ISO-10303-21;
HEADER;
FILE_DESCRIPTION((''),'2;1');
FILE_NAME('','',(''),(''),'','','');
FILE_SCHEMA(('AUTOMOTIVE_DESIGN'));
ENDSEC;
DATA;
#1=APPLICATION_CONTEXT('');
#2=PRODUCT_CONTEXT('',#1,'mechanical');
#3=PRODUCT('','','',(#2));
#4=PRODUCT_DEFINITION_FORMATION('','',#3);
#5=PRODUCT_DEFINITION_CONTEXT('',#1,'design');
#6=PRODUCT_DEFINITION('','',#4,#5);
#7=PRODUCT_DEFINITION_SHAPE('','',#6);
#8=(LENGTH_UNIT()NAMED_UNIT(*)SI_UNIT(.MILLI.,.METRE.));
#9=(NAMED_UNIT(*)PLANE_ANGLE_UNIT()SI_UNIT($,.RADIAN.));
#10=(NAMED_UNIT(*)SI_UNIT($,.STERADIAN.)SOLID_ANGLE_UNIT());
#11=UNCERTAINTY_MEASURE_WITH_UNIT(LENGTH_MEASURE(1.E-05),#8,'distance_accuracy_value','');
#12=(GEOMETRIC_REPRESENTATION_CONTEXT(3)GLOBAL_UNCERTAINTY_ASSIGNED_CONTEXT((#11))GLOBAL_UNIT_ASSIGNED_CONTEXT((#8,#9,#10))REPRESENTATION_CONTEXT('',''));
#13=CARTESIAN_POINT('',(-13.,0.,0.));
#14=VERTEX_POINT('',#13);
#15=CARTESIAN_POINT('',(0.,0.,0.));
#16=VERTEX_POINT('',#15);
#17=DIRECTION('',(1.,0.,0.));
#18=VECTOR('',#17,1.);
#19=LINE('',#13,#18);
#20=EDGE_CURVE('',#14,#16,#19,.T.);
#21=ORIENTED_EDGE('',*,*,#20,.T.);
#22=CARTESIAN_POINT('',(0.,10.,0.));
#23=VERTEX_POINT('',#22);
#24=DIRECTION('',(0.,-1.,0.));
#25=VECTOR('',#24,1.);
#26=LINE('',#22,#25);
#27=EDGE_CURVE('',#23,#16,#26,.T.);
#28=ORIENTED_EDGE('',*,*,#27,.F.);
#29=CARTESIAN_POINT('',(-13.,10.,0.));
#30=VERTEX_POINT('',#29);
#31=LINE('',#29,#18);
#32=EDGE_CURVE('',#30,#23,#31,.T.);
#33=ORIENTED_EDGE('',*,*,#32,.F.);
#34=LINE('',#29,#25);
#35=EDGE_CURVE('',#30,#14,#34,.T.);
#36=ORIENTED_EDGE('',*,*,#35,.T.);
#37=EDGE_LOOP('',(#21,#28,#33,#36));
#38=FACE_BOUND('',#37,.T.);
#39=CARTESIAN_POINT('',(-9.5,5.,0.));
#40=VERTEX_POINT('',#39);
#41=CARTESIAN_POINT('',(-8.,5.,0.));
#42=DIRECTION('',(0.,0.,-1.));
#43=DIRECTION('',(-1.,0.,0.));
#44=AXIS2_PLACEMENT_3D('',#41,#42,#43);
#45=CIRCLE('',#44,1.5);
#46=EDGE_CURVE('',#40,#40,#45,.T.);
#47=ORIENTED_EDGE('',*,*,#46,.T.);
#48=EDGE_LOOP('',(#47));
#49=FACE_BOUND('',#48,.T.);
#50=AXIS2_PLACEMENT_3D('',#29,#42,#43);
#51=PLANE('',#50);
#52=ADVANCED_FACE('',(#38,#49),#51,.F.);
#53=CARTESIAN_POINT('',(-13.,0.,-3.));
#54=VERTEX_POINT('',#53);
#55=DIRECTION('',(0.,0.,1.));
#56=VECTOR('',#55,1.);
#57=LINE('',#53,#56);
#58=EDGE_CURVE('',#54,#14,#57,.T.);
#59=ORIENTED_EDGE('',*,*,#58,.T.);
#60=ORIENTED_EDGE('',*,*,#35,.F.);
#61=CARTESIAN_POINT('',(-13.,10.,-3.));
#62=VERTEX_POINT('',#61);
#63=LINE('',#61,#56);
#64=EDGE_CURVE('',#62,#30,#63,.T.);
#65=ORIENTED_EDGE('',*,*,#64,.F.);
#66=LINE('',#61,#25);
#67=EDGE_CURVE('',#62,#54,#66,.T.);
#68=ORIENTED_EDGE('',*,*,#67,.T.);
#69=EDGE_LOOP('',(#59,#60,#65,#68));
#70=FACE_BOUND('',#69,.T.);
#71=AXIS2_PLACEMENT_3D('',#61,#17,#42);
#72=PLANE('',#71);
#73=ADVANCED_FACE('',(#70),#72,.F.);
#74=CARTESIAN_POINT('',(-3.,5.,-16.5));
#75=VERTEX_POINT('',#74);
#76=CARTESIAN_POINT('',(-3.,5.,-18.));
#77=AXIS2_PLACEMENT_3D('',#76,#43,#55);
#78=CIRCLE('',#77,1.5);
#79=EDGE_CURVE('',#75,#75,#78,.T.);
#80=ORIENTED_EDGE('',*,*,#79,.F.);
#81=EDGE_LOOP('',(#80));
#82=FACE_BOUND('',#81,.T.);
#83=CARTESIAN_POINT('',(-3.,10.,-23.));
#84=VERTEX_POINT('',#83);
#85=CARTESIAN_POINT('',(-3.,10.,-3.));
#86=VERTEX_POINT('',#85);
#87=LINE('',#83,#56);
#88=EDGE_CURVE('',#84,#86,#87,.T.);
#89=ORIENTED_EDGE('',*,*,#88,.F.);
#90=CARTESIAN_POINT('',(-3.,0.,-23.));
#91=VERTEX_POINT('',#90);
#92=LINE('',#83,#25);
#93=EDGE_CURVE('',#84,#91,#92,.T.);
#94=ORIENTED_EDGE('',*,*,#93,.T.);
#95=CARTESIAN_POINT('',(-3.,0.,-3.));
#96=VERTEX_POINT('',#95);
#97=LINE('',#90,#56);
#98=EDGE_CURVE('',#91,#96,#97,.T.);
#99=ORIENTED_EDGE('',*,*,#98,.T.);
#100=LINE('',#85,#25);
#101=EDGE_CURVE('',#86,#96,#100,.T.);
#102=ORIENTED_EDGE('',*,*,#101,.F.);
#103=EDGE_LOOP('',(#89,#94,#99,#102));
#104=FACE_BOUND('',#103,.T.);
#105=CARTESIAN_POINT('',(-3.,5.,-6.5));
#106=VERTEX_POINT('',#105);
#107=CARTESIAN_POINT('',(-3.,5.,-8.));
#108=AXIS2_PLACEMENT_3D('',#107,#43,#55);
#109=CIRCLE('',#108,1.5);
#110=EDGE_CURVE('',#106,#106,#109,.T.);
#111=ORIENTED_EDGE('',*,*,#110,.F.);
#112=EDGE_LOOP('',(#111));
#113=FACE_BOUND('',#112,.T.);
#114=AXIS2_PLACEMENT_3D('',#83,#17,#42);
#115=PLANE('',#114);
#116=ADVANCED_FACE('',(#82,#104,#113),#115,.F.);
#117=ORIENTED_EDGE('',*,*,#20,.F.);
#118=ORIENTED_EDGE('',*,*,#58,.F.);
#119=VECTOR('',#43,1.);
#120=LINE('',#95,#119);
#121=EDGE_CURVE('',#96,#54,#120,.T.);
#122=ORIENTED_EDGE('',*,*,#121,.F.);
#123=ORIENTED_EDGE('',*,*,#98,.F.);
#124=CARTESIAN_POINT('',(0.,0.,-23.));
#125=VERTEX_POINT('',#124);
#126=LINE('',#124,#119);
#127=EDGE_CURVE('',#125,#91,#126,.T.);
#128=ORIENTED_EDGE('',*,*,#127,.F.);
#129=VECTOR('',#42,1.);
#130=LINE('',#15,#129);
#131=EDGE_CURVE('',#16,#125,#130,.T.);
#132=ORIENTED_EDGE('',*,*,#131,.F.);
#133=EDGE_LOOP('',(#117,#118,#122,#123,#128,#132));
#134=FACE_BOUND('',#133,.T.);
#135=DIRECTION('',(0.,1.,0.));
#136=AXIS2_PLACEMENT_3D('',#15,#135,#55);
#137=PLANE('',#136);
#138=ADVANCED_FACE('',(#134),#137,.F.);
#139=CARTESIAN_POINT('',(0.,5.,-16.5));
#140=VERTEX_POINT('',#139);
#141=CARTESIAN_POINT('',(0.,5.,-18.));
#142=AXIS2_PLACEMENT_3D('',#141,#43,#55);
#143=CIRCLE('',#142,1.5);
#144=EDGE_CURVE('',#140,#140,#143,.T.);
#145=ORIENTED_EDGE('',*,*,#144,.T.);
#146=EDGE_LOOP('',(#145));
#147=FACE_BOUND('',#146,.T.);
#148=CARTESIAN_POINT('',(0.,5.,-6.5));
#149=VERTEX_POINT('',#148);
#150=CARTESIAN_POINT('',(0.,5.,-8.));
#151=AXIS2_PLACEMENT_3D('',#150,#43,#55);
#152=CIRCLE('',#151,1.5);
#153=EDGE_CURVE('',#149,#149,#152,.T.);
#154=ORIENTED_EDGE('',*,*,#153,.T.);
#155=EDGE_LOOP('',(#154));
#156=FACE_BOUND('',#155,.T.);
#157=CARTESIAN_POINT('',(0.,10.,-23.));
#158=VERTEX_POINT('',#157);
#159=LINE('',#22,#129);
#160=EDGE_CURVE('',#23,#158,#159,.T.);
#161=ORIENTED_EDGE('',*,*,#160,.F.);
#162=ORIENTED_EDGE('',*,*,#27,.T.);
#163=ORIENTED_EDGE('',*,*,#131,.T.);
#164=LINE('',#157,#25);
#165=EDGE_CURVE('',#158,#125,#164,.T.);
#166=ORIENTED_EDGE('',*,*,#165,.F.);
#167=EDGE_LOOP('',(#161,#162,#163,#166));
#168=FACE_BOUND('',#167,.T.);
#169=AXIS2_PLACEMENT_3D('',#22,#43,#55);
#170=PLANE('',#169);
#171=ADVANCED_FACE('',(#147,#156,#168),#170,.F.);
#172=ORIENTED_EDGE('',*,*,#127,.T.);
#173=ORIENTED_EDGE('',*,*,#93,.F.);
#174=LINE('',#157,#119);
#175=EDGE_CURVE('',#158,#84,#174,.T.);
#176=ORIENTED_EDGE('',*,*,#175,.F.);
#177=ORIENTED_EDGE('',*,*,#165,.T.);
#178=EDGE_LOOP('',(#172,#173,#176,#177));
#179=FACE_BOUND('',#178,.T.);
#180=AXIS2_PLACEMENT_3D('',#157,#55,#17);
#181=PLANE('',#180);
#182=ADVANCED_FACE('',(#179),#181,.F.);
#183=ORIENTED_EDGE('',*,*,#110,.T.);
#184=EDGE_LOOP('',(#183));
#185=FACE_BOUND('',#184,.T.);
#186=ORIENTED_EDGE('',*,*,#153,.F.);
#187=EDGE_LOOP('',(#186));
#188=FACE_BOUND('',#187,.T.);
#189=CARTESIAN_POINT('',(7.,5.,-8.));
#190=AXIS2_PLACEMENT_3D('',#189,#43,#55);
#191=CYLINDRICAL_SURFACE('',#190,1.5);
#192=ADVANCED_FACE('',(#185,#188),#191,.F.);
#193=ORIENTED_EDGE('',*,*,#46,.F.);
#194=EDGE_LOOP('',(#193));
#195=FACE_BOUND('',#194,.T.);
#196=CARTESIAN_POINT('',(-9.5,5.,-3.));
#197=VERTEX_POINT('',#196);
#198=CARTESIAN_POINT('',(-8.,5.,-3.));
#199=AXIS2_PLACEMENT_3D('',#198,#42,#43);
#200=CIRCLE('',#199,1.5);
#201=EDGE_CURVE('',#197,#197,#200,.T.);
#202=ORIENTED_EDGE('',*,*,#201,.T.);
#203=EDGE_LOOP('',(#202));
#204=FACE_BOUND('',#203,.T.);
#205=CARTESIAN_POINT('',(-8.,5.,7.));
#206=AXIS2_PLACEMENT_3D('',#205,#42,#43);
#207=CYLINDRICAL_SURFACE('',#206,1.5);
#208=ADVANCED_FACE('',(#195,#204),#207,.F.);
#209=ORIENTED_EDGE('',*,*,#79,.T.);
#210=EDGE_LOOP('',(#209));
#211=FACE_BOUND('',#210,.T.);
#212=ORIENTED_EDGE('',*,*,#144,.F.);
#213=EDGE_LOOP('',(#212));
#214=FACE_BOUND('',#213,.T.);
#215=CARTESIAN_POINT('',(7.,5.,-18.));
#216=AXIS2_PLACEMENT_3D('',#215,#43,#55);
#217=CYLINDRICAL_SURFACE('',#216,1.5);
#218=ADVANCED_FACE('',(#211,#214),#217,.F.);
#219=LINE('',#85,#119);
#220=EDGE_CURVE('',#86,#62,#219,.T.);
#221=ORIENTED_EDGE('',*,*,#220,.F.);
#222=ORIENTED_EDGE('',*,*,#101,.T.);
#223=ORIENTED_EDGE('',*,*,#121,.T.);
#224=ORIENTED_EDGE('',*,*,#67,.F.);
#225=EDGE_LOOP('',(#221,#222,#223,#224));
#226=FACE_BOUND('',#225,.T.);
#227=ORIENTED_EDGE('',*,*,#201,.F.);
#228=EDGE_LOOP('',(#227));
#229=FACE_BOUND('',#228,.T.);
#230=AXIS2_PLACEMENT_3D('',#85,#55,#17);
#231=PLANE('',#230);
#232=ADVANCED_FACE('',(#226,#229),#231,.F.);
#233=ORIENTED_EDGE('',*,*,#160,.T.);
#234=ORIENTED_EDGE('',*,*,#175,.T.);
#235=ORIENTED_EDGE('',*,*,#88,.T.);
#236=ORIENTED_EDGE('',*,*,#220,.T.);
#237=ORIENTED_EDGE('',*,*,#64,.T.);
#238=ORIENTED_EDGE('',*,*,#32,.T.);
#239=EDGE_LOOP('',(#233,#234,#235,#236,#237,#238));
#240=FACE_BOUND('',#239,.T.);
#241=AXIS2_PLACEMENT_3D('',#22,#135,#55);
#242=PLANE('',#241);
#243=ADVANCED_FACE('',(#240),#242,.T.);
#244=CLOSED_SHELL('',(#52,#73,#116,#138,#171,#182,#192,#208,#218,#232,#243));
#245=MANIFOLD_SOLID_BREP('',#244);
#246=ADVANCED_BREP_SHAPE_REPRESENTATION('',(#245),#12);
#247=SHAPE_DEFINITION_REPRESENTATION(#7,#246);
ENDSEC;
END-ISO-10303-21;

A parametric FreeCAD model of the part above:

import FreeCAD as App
import Part
import Sketcher
from FreeCAD import Vector

doc = App.newDocument("Part")
body = doc.addObject("PartDesign::Body", "Body")

# Sketch on XZ plane
sketch1 = body.newObject("Sketcher::SketchObject", "Sketch")
sketch1.AttachmentSupport = (doc.getObject("XZ_Plane"), [""])
sketch1.MapMode = "FlatFace"
sketch1.addGeometry([
    Part.LineSegment(Vector(-13, 0, 0), Vector(0, 0, 0)),  # 0
    Part.LineSegment(Vector(0, 0, 0), Vector(0, -23, 0)),  # 1
    Part.LineSegment(Vector(0, -23, 0), Vector(-3, -23, 0)),  # 2
    Part.LineSegment(Vector(-3, -23, 0), Vector(-3, -3, 0)),  # 3
    Part.LineSegment(Vector(-3, -3, 0), Vector(-13, -3, 0)),  # 4
    Part.LineSegment(Vector(-13, -3, 0), Vector(-13, 0, 0)),  # 5
], False)
sketch1.addConstraint([
    Sketcher.Constraint("Coincident", 0, 2, 1, 1),
    Sketcher.Constraint("Coincident", 1, 2, 2, 1),
    Sketcher.Constraint("Coincident", 2, 2, 3, 1),
    Sketcher.Constraint("Coincident", 3, 2, 4, 1),
    Sketcher.Constraint("Coincident", 4, 2, 5, 1),
    Sketcher.Constraint("Coincident", 5, 2, 0, 1),
    Sketcher.Constraint("Horizontal", 0),
    Sketcher.Constraint("Vertical", 1),
    Sketcher.Constraint("Horizontal", 2),
    Sketcher.Constraint("Vertical", 3),
    Sketcher.Constraint("Horizontal", 4),
    Sketcher.Constraint("Vertical", 5),
    Sketcher.Constraint("Coincident", 0, 2, -1, 1),
    Sketcher.Constraint("Equal", 2, 5),
    Sketcher.Constraint("DistanceX", 0, 1, 0, 2, 13.0),
    Sketcher.Constraint("DistanceX", 2, 2, 2, 1, 3.0),
    Sketcher.Constraint("DistanceY", 1, 2, 1, 1, 23.0),
])
pad1 = body.newObject("PartDesign::Pad", "Pad")
pad1.Profile = sketch1
pad1.Length = 10
pad1.Reversed = True

# Sketch on YZ plane
sketch2 = body.newObject("Sketcher::SketchObject", "Sketch001")
sketch2.AttachmentSupport = (doc.getObject("YZ_Plane"), [""])
sketch2.MapMode = "FlatFace"
sketch2.AttachmentOffset = App.Placement(Vector(0, 0, -3), App.Rotation())
sketch2.addGeometry([
    Part.Circle(Vector(5, -18, 0), Vector(0, 0, 1), 1.5),
    Part.Circle(Vector(5, -8, 0), Vector(0, 0, 1), 1.5),
], False)
sketch2.addConstraint([
    Sketcher.Constraint("Equal", 0, 1),
    Sketcher.Constraint("Vertical", 0, 3, 1, 3),
    Sketcher.Constraint("Diameter", 0, 3.0),
    Sketcher.Constraint("DistanceX", -1, 1, 0, 3, 5.0),
    Sketcher.Constraint("DistanceY", 0, 3, -1, 1, 18.0),
    Sketcher.Constraint("DistanceY", 1, 3, -1, 1, 8.0),
])
pocket1 = body.newObject("PartDesign::Pocket", "Pocket")
pocket1.Profile = sketch2
pocket1.Length = 10
pocket1.Reversed = True

# Sketch on XY plane
sketch3 = body.newObject("Sketcher::SketchObject", "Sketch002")
sketch3.AttachmentSupport = (doc.getObject("XY_Plane"), [""])
sketch3.MapMode = "FlatFace"
sketch3.AttachmentOffset = App.Placement(Vector(0, 0, -3), App.Rotation())
sketch3.addGeometry([
    Part.Circle(Vector(-8, 5, 0), Vector(0, 0, 1), 1.5),
    Part.Circle(Vector(2, 5, 0), Vector(0, 0, 1), 1.5),
], False)
sketch3.addConstraint([
    Sketcher.Constraint("Equal", 0, 1),
    Sketcher.Constraint("Horizontal", 0, 3, 1, 3),
    Sketcher.Constraint("Diameter", 0, 3.0),
    Sketcher.Constraint("DistanceX", 0, 3, -1, 1, 8.0),
    Sketcher.Constraint("DistanceY", -1, 1, 0, 3, 5.0),
    Sketcher.Constraint("DistanceX", -1, 1, 1, 3, 2.0),
])
pocket2 = body.newObject("PartDesign::Pocket", "Pocket001")
pocket2.Profile = sketch3
pocket2.Length = 10
pocket2.Reversed = True

doc.recompute()
